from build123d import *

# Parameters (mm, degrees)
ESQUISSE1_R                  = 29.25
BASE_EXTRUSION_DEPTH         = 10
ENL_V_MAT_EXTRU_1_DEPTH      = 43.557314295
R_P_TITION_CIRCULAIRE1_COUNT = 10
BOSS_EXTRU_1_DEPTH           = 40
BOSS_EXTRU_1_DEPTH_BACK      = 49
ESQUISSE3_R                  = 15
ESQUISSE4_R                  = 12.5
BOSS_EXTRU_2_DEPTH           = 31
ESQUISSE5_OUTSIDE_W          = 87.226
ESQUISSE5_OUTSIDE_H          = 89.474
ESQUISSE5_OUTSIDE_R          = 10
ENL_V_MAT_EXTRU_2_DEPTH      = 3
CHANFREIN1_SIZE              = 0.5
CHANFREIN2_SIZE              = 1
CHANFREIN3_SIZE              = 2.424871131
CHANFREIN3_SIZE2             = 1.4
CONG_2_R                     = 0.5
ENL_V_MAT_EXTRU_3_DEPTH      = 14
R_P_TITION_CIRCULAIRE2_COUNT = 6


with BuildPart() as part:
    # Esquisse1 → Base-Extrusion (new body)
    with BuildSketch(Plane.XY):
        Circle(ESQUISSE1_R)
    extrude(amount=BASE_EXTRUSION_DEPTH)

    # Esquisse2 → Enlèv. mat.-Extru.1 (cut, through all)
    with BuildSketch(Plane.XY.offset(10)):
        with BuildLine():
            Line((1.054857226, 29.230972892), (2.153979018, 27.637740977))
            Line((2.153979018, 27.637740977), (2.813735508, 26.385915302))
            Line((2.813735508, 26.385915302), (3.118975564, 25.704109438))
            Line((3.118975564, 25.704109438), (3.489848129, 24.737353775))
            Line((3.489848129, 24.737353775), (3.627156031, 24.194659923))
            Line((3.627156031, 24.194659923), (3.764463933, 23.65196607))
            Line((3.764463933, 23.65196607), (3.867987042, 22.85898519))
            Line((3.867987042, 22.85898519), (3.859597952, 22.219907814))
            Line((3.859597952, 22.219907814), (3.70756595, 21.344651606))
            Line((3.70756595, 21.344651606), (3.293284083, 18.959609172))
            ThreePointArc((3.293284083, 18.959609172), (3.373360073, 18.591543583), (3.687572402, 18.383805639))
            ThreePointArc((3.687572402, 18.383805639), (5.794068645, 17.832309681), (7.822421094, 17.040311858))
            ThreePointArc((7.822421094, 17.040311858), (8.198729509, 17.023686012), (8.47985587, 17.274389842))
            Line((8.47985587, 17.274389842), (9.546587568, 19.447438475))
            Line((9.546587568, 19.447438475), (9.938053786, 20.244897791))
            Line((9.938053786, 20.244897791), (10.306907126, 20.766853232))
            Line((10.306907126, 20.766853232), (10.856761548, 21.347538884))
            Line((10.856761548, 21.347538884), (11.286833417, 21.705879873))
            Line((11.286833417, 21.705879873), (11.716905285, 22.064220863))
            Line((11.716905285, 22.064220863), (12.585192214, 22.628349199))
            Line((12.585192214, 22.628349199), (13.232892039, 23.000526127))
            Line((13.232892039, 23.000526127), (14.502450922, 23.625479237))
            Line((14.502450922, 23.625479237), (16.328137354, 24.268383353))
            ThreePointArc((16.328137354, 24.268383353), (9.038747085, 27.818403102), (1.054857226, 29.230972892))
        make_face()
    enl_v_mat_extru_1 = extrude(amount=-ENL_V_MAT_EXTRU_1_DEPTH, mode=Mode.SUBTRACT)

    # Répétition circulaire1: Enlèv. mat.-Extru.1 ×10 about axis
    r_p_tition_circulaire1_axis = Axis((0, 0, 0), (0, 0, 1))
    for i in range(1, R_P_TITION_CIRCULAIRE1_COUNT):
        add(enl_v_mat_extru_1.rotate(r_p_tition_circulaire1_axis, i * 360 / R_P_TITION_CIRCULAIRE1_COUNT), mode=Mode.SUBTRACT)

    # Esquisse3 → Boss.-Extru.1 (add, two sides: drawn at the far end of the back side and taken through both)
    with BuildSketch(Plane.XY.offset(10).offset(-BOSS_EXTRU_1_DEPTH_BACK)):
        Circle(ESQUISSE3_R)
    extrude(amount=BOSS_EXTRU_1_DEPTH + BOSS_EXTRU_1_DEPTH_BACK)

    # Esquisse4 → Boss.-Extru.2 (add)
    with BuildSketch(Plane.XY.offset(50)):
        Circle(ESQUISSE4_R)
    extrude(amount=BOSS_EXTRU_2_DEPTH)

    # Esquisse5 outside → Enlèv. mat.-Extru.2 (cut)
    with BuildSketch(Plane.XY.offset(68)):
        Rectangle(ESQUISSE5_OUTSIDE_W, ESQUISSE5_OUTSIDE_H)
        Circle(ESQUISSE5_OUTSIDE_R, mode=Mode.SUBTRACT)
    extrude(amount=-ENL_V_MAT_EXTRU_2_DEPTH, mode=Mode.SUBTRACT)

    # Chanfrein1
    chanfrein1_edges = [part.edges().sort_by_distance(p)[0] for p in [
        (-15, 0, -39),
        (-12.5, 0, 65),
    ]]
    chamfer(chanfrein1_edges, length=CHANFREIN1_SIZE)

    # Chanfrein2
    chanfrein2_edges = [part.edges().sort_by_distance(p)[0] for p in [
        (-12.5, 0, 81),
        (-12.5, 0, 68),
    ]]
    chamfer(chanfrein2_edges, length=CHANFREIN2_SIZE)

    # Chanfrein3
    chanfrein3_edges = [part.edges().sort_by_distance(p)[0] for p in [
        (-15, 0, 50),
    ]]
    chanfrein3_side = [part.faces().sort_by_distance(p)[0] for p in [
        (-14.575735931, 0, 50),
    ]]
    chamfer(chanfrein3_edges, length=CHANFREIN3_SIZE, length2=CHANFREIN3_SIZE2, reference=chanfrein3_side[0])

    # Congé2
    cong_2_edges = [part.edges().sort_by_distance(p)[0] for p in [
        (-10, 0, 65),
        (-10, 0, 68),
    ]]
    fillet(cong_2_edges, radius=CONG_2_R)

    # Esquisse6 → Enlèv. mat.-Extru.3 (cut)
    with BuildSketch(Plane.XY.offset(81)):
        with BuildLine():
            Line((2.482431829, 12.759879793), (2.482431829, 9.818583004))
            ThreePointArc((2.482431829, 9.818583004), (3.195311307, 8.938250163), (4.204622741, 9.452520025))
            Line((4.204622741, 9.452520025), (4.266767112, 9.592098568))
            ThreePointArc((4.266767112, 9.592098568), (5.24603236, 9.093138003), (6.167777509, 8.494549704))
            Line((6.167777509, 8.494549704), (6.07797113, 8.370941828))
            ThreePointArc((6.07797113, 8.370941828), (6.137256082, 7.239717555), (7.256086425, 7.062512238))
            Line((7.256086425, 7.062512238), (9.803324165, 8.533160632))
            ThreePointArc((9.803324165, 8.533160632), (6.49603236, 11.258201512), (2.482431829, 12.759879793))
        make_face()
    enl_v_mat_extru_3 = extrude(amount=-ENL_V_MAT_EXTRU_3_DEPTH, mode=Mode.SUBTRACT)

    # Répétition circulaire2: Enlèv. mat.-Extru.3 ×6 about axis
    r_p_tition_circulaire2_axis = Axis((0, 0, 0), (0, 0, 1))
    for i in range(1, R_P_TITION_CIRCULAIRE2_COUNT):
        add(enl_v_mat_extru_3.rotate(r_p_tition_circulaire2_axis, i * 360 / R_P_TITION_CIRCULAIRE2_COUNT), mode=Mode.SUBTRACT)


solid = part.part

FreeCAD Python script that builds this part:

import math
import FreeCAD as App
import Part
import Sketcher
Q = App.Units.Quantity


def edges_at(feature, points):
    """Names of the edges that pass closest to the given points."""
    edges = feature.Shape.Edges
    near = lambda p: min(range(len(edges)), key=lambda i: edges[i].distToShape(Part.Vertex(*p))[0])
    return sorted({f"Edge{near(p) + 1}" for p in points})

doc = App.newDocument("Part")
body = doc.addObject("PartDesign::Body", "Body")

sketch1 = body.newObject("Sketcher::SketchObject", "Sketch")
sketch1.AttachmentSupport = (doc.getObject("XY_Plane"), [""])
sketch1.MapMode = "FlatFace"
sketch1.addGeometry(Part.Circle(App.Vector(0, 0, 0), App.Vector(0, 0, 1), 29), False)
sketch1.addConstraint([
    Sketcher.Constraint("Coincident", 0, 3, -1, 1),
    Sketcher.Constraint("Diameter", 0, 58.5),
])
pad1 = body.newObject("PartDesign::Pad", "Pad")
pad1.Profile = sketch1
pad1.Length = 10

sketch2 = body.newObject("Sketcher::SketchObject", "Sketch001")
sketch2.AttachmentSupport = (doc.getObject("XY_Plane"), [""])
sketch2.MapMode = "FlatFace"
sketch2.AttachmentOffset = App.Placement(App.Vector(0, 0, 10), App.Rotation())
sketch2.addGeometry([
    Part.LineSegment(App.Vector(1.1, 29.2, 0), App.Vector(2.2, 27.6, 0)),
    Part.LineSegment(App.Vector(2.2, 27.6, 0), App.Vector(2.8, 26.4, 0)),
    Part.LineSegment(App.Vector(2.8, 26.4, 0), App.Vector(3.1, 25.7, 0)),
    Part.LineSegment(App.Vector(3.1, 25.7, 0), App.Vector(3.5, 24.7, 0)),
    Part.LineSegment(App.Vector(3.5, 24.7, 0), App.Vector(3.6, 24.2, 0)),
    Part.LineSegment(App.Vector(3.6, 24.2, 0), App.Vector(3.8, 23.7, 0)),
    Part.LineSegment(App.Vector(3.8, 23.7, 0), App.Vector(3.9, 22.9, 0)),
    Part.LineSegment(App.Vector(3.9, 22.9, 0), App.Vector(3.9, 22.2, 0)),
    Part.LineSegment(App.Vector(3.9, 22.2, 0), App.Vector(3.7, 21.3, 0)),
    Part.LineSegment(App.Vector(3.7, 21.3, 0), App.Vector(3.3, 19, 0)),
    Part.ArcOfCircle(Part.Circle(App.Vector(3.8, 18.9, 0), App.Vector(0, 0, 1), 0.5), math.radians(170), math.radians(259)),
    Part.ArcOfCircle(Part.Circle(App.Vector(0, 0, 0), App.Vector(0, 0, 1), 18.7), math.radians(65.34), math.radians(78.66)),
    Part.ArcOfCircle(Part.Circle(App.Vector(8, 17.5, 0), App.Vector(0, 0, 1), 0.5), math.radians(-115), math.radians(-26)),
    Part.LineSegment(App.Vector(8.5, 17.3, 0), App.Vector(9.5, 19.4, 0)),
    Part.LineSegment(App.Vector(9.5, 19.4, 0), App.Vector(9.9, 20.2, 0)),
    Part.LineSegment(App.Vector(9.9, 20.2, 0), App.Vector(10.3, 20.8, 0)),
    Part.LineSegment(App.Vector(10.3, 20.8, 0), App.Vector(10.9, 21.3, 0)),
    Part.LineSegment(App.Vector(10.9, 21.3, 0), App.Vector(11.3, 21.7, 0)),
    Part.LineSegment(App.Vector(11.3, 21.7, 0), App.Vector(11.7, 22.1, 0)),
    Part.LineSegment(App.Vector(11.7, 22.1, 0), App.Vector(12.6, 22.6, 0)),
    Part.LineSegment(App.Vector(12.6, 22.6, 0), App.Vector(13.2, 23, 0)),
    Part.LineSegment(App.Vector(13.2, 23, 0), App.Vector(14.5, 23.6, 0)),
    Part.LineSegment(App.Vector(14.5, 23.6, 0), App.Vector(16.3, 24.3, 0)),
    Part.ArcOfCircle(Part.Circle(App.Vector(0, 0, 0), App.Vector(0, 0, 1), 29.2), math.radians(56), math.radians(88)),
], False)
sketch2.addConstraint([
    Sketcher.Constraint("Coincident", 0, 2, 1, 1),
    Sketcher.Constraint("Coincident", 1, 2, 2, 1),
    Sketcher.Constraint("Coincident", 2, 2, 3, 1),
    Sketcher.Constraint("Coincident", 3, 2, 4, 1),
    Sketcher.Constraint("Coincident", 4, 2, 5, 1),
    Sketcher.Constraint("Coincident", 5, 2, 6, 1),
    Sketcher.Constraint("Coincident", 6, 2, 7, 1),
    Sketcher.Constraint("Coincident", 7, 2, 8, 1),
    Sketcher.Constraint("Coincident", 8, 2, 9, 1),
    Sketcher.Constraint("Tangent", 9, 2, 10, 1),
    Sketcher.Constraint("Tangent", 10, 2, 11, 2),
    Sketcher.Constraint("Tangent", 11, 1, 12, 1),
    Sketcher.Constraint("Tangent", 12, 2, 13, 1),
    Sketcher.Constraint("Coincident", 13, 2, 14, 1),
    Sketcher.Constraint("Coincident", 14, 2, 15, 1),
    Sketcher.Constraint("Coincident", 15, 2, 16, 1),
    Sketcher.Constraint("Coincident", 16, 2, 17, 1),
    Sketcher.Constraint("Coincident", 17, 2, 18, 1),
    Sketcher.Constraint("Coincident", 18, 2, 19, 1),
    Sketcher.Constraint("Coincident", 19, 2, 20, 1),
    Sketcher.Constraint("Coincident", 20, 2, 21, 1),
    Sketcher.Constraint("Coincident", 21, 2, 22, 1),
    Sketcher.Constraint("Coincident", 22, 2, 23, 1),
    Sketcher.Constraint("Coincident", 23, 2, 0, 1),
    Sketcher.Constraint("Coincident", 11, 3, -1, 1),
    Sketcher.Constraint("Coincident", 23, 3, -1, 1),
    Sketcher.Constraint("Equal", 10, 12),
    Sketcher.Constraint("Parallel", 4, 5),
    Sketcher.Constraint("Parallel", 8, 9),
    Sketcher.Constraint("Parallel", 13, 14),
    Sketcher.Constraint("Parallel", 17, 18),
    Sketcher.Constraint("Equal", 4, 5),
    Sketcher.Constraint("Equal", 9, 13),
    Sketcher.Constraint("Equal", 8, 14),
    Sketcher.Constraint("Equal", 7, 15),
    Sketcher.Constraint("Equal", 6, 16),
    Sketcher.Constraint("Equal", 5, 17),
    Sketcher.Constraint("Equal", 17, 18),
    Sketcher.Constraint("Equal", 3, 19),
    Sketcher.Constraint("Equal", 2, 20),
    Sketcher.Constraint("Equal", 1, 21),
    Sketcher.Constraint("Equal", 0, 22),
    Sketcher.Constraint("Radius", 10, 0.5),
    Sketcher.Constraint("Radius", 11, 18.75),
    Sketcher.Constraint("Radius", 23, 29.25),
    Sketcher.Constraint("DistanceX", 15, 2, 18, 2, 1.409998),
    Sketcher.Constraint("DistanceY", 10, 3, 0, 2, 8.763701),
    Sketcher.Constraint("DistanceY", 9, 2, 7, 2, 3.260299),
    Sketcher.Constraint("DistanceY", 10, 3, 13, 2, 0.573398),
    Sketcher.Constraint("DistanceY", 13, 2, 16, 2, 1.9001),
    Sketcher.Constraint("DistanceX", 19, 2, 20, 2, 0.6477),
    Sketcher.Constraint("DistanceY", 17, 2, 21, 2, 1.919599),
    Sketcher.Constraint("DistanceX", 23, 2, 4, 2, 2.572299),
    Sketcher.Constraint("Distance", 6, 0.79971),
    Sketcher.Constraint("DistanceY", -1, 1, 10, 3, 18.87404),
    Sketcher.Constraint("DistanceX", -1, 1, 12, 3, 8.031019),
    Sketcher.Constraint("DistanceX", -1, 1, 0, 2, 2.153979),
    Sketcher.Constraint("DistanceY", -1, 1, 2, 2, 25.704109),
    Sketcher.Constraint("DistanceX", -1, 1, 3, 2, 3.489848),
    Sketcher.Constraint("DistanceY", -1, 1, 4, 2, 24.19466),
    Sketcher.Constraint("DistanceY", -1, 1, 8, 2, 21.344652),
    Sketcher.Constraint("DistanceY", -1, 1, 9, 2, 18.959609),
    Sketcher.Constraint("DistanceX", -1, 1, 16, 2, 10.856762),
    Sketcher.Constraint("DistanceY", -1, 1, 17, 2, 21.70588),
    Sketcher.Constraint("DistanceY", -1, 1, 19, 2, 22.628349),
    Sketcher.Constraint("DistanceX", -1, 1, 21, 2, 14.502451),
    Sketcher.Constraint("DistanceX", 1, 2, 2, 2, 0.30524),
    Sketcher.Constraint("DistanceY", 3, 2, 1, 2, 1.648562),
    Sketcher.Constraint("DistanceX", 2, 2, 4, 2, 0.50818),
    Sketcher.Constraint("DistanceX", 4, 2, 10, 3, 0.158752),
])
pocket1 = body.newObject("PartDesign::Pocket", "Pocket")
pocket1.Profile = sketch2
pocket1.Type = "ThroughAll"
doc.recompute()

polarpattern = body.newObject("PartDesign::PolarPattern", "PolarPattern")
polarpattern.Originals = [pocket1]
polarpattern.Axis = (doc.getObject("Z_Axis"), [""])
polarpattern.Angle = 360
polarpattern.Occurrences = 10
body.Tip = polarpattern

sketch3 = body.newObject("Sketcher::SketchObject", "Sketch002")
sketch3.AttachmentSupport = (doc.getObject("XY_Plane"), [""])
sketch3.MapMode = "FlatFace"
sketch3.AttachmentOffset = App.Placement(App.Vector(0, 0, 10), App.Rotation())
sketch3.addGeometry(Part.Circle(App.Vector(0, 0, 0), App.Vector(0, 0, 1), 15), False)
sketch3.addConstraint([
    Sketcher.Constraint("Coincident", 0, 3, -1, 1),
    Sketcher.Constraint("Diameter", 0, 30.0),
])
pad2 = body.newObject("PartDesign::Pad", "Pad001")
pad2.Profile = sketch3
pad2.Type = "TwoLengths"
pad2.Length = 40
pad2.Length2 = 49

sketch4 = body.newObject("Sketcher::SketchObject", "Sketch003")
sketch4.AttachmentSupport = (doc.getObject("XY_Plane"), [""])
sketch4.MapMode = "FlatFace"
sketch4.AttachmentOffset = App.Placement(App.Vector(0, 0, 50), App.Rotation())
sketch4.addGeometry(Part.Circle(App.Vector(0, 0, 0), App.Vector(0, 0, 1), 12), False)
sketch4.addConstraint([
    Sketcher.Constraint("Coincident", 0, 3, -1, 1),
    Sketcher.Constraint("Diameter", 0, 25.0),
])
pad3 = body.newObject("PartDesign::Pad", "Pad002")
pad3.Profile = sketch4
pad3.Length = 31

sketch5 = body.newObject("Sketcher::SketchObject", "Sketch004")
sketch5.AttachmentSupport = (doc.getObject("XY_Plane"), [""])
sketch5.MapMode = "FlatFace"
sketch5.AttachmentOffset = App.Placement(App.Vector(0, 0, 68), App.Rotation())
sketch5.addGeometry([
    Part.LineSegment(App.Vector(-44, 45, 0), App.Vector(-44, -45, 0)),
    Part.LineSegment(App.Vector(-44, -45, 0), App.Vector(44, -45, 0)),
    Part.LineSegment(App.Vector(44, -45, 0), App.Vector(44, 45, 0)),
    Part.LineSegment(App.Vector(44, 45, 0), App.Vector(-44, 45, 0)),
    Part.Circle(App.Vector(0, 0, 0), App.Vector(0, 0, 1), 10),
], False)
sketch5.addConstraint([
    Sketcher.Constraint("Coincident", 0, 2, 1, 1),
    Sketcher.Constraint("Coincident", 1, 2, 2, 1),
    Sketcher.Constraint("Coincident", 2, 2, 3, 1),
    Sketcher.Constraint("Coincident", 3, 2, 0, 1),
    Sketcher.Constraint("Vertical", 0),
    Sketcher.Constraint("Horizontal", 1),
    Sketcher.Constraint("Vertical", 2),
    Sketcher.Constraint("Horizontal", 3),
    Sketcher.Constraint("Coincident", 4, 3, -1, 1),
    Sketcher.Constraint("Symmetric", 0, 2, 2, 2, -1, 1),
    Sketcher.Constraint("Diameter", 4, 20.0),
    Sketcher.Constraint("DistanceX", 1, 1, 1, 2, 87.226),
    Sketcher.Constraint("DistanceY", 0, 2, 0, 1, 89.474),
])
pocket2 = body.newObject("PartDesign::Pocket", "Pocket001")
pocket2.Profile = sketch5
pocket2.Length = 3
doc.recompute()

chamfer = body.newObject("PartDesign::Chamfer", "Chamfer")
chamfer.Base = (pocket2, edges_at(pocket2, [(-15, 0, -39), (-12.5, 0, 65)]))
chamfer.Size = 0.5
doc.recompute()

chamfer2 = body.newObject("PartDesign::Chamfer", "Chamfer001")
chamfer2.Base = (chamfer, edges_at(chamfer, [(-12.5, 0, 81), (-12.5, 0, 68)]))
chamfer2.Size = 1
doc.recompute()

chamfer3 = body.newObject("PartDesign::Chamfer", "Chamfer002")
chamfer3.Base = (chamfer2, edges_at(chamfer2, [(-15, 0, 50)]))
chamfer3.ChamferType = "Two distances"
chamfer3.Size = 2.424871
chamfer3.Size2 = 1.4
doc.recompute()

fillet = body.newObject("PartDesign::Fillet", "Fillet")
fillet.Base = (chamfer3, edges_at(chamfer3, [(-10, 0, 65), (-10, 0, 68)]))
fillet.Radius = 0.5

sketch6 = body.newObject("Sketcher::SketchObject", "Sketch005")
sketch6.AttachmentSupport = (doc.getObject("XY_Plane"), [""])
sketch6.MapMode = "FlatFace"
sketch6.AttachmentOffset = App.Placement(App.Vector(0, 0, 81), App.Rotation())
sketch6.addGeometry([
    Part.LineSegment(App.Vector(2.48, 12.76, 0), App.Vector(2.48, 9.82, 0)),
    Part.ArcOfCircle(Part.Circle(App.Vector(3.38, 9.82, 0), App.Vector(0, 0, 1), 0.9), math.radians(180), math.radians(336)),
    Part.LineSegment(App.Vector(4.2, 9.45, 0), App.Vector(4.27, 9.59, 0)),
    Part.ArcOfCircle(Part.Circle(App.Vector(0, 0, 0), App.Vector(0, 0, 1), 10.5), math.radians(54), math.radians(66)),
    Part.LineSegment(App.Vector(6.17, 8.49, 0), App.Vector(6.08, 8.37, 0)),
    Part.ArcOfCircle(Part.Circle(App.Vector(6.81, 7.84, 0), App.Vector(0, 0, 1), 0.9), math.radians(144), math.radians(300)),
    Part.LineSegment(App.Vector(7.26, 7.06, 0), App.Vector(9.8, 8.53, 0)),
    Part.ArcOfCircle(Part.Circle(App.Vector(0, 0, 0), App.Vector(0, 0, 1), 13), math.radians(41), math.radians(79)),
], False)
sketch6.addConstraint([
    Sketcher.Constraint("Tangent", 0, 2, 1, 1),
    Sketcher.Constraint("Tangent", 1, 2, 2, 1),
    Sketcher.Constraint("Coincident", 2, 2, 3, 2),
    Sketcher.Constraint("Coincident", 3, 1, 4, 1),
    Sketcher.Constraint("Tangent", 4, 2, 5, 1),
    Sketcher.Constraint("Tangent", 5, 2, 6, 1),
    Sketcher.Constraint("Coincident", 6, 2, 7, 1),
    Sketcher.Constraint("Coincident", 7, 2, 0, 1),
    Sketcher.Constraint("Vertical", 0),
    Sketcher.Constraint("Coincident", 7, 3, 3, 3),
    Sketcher.Constraint("Equal", 1, 5),
    Sketcher.Constraint("Equal", 2, 4),
    Sketcher.Constraint("Radius", 7, 13.0),
    Sketcher.Constraint("Radius", 1, 0.9),
    Sketcher.Constraint("Radius", 3, 10.5),
    Sketcher.Constraint("Angle", 2, Q("66 deg")),
    Sketcher.Constraint("Angle", 4, Q("-126 deg")),
    Sketcher.Constraint("Angle", 6, Q("30 deg")),
    Sketcher.Constraint("DistanceY", -1, 1, 2, 2, 9.592099),
    Sketcher.Constraint("DistanceX", 3, 3, 1, 3, 3.386399),
    Sketcher.Constraint("DistanceY", 0, 2, 0, 1, 2.941297),
    Sketcher.Constraint("DistanceX", -1, 1, 1, 3, 3.382432),
    Sketcher.Constraint("DistanceY", -1, 1, 3, 1, 8.49455),
])
pocket3 = body.newObject("PartDesign::Pocket", "Pocket002")
pocket3.Profile = sketch6
pocket3.Length = 14
doc.recompute()

polarpattern2 = body.newObject("PartDesign::PolarPattern", "PolarPattern001")
polarpattern2.Originals = [pocket3]
polarpattern2.Axis = (doc.getObject("Z_Axis"), [""])
polarpattern2.Angle = 360
polarpattern2.Occurrences = 6
body.Tip = polarpattern2

doc.recompute()
